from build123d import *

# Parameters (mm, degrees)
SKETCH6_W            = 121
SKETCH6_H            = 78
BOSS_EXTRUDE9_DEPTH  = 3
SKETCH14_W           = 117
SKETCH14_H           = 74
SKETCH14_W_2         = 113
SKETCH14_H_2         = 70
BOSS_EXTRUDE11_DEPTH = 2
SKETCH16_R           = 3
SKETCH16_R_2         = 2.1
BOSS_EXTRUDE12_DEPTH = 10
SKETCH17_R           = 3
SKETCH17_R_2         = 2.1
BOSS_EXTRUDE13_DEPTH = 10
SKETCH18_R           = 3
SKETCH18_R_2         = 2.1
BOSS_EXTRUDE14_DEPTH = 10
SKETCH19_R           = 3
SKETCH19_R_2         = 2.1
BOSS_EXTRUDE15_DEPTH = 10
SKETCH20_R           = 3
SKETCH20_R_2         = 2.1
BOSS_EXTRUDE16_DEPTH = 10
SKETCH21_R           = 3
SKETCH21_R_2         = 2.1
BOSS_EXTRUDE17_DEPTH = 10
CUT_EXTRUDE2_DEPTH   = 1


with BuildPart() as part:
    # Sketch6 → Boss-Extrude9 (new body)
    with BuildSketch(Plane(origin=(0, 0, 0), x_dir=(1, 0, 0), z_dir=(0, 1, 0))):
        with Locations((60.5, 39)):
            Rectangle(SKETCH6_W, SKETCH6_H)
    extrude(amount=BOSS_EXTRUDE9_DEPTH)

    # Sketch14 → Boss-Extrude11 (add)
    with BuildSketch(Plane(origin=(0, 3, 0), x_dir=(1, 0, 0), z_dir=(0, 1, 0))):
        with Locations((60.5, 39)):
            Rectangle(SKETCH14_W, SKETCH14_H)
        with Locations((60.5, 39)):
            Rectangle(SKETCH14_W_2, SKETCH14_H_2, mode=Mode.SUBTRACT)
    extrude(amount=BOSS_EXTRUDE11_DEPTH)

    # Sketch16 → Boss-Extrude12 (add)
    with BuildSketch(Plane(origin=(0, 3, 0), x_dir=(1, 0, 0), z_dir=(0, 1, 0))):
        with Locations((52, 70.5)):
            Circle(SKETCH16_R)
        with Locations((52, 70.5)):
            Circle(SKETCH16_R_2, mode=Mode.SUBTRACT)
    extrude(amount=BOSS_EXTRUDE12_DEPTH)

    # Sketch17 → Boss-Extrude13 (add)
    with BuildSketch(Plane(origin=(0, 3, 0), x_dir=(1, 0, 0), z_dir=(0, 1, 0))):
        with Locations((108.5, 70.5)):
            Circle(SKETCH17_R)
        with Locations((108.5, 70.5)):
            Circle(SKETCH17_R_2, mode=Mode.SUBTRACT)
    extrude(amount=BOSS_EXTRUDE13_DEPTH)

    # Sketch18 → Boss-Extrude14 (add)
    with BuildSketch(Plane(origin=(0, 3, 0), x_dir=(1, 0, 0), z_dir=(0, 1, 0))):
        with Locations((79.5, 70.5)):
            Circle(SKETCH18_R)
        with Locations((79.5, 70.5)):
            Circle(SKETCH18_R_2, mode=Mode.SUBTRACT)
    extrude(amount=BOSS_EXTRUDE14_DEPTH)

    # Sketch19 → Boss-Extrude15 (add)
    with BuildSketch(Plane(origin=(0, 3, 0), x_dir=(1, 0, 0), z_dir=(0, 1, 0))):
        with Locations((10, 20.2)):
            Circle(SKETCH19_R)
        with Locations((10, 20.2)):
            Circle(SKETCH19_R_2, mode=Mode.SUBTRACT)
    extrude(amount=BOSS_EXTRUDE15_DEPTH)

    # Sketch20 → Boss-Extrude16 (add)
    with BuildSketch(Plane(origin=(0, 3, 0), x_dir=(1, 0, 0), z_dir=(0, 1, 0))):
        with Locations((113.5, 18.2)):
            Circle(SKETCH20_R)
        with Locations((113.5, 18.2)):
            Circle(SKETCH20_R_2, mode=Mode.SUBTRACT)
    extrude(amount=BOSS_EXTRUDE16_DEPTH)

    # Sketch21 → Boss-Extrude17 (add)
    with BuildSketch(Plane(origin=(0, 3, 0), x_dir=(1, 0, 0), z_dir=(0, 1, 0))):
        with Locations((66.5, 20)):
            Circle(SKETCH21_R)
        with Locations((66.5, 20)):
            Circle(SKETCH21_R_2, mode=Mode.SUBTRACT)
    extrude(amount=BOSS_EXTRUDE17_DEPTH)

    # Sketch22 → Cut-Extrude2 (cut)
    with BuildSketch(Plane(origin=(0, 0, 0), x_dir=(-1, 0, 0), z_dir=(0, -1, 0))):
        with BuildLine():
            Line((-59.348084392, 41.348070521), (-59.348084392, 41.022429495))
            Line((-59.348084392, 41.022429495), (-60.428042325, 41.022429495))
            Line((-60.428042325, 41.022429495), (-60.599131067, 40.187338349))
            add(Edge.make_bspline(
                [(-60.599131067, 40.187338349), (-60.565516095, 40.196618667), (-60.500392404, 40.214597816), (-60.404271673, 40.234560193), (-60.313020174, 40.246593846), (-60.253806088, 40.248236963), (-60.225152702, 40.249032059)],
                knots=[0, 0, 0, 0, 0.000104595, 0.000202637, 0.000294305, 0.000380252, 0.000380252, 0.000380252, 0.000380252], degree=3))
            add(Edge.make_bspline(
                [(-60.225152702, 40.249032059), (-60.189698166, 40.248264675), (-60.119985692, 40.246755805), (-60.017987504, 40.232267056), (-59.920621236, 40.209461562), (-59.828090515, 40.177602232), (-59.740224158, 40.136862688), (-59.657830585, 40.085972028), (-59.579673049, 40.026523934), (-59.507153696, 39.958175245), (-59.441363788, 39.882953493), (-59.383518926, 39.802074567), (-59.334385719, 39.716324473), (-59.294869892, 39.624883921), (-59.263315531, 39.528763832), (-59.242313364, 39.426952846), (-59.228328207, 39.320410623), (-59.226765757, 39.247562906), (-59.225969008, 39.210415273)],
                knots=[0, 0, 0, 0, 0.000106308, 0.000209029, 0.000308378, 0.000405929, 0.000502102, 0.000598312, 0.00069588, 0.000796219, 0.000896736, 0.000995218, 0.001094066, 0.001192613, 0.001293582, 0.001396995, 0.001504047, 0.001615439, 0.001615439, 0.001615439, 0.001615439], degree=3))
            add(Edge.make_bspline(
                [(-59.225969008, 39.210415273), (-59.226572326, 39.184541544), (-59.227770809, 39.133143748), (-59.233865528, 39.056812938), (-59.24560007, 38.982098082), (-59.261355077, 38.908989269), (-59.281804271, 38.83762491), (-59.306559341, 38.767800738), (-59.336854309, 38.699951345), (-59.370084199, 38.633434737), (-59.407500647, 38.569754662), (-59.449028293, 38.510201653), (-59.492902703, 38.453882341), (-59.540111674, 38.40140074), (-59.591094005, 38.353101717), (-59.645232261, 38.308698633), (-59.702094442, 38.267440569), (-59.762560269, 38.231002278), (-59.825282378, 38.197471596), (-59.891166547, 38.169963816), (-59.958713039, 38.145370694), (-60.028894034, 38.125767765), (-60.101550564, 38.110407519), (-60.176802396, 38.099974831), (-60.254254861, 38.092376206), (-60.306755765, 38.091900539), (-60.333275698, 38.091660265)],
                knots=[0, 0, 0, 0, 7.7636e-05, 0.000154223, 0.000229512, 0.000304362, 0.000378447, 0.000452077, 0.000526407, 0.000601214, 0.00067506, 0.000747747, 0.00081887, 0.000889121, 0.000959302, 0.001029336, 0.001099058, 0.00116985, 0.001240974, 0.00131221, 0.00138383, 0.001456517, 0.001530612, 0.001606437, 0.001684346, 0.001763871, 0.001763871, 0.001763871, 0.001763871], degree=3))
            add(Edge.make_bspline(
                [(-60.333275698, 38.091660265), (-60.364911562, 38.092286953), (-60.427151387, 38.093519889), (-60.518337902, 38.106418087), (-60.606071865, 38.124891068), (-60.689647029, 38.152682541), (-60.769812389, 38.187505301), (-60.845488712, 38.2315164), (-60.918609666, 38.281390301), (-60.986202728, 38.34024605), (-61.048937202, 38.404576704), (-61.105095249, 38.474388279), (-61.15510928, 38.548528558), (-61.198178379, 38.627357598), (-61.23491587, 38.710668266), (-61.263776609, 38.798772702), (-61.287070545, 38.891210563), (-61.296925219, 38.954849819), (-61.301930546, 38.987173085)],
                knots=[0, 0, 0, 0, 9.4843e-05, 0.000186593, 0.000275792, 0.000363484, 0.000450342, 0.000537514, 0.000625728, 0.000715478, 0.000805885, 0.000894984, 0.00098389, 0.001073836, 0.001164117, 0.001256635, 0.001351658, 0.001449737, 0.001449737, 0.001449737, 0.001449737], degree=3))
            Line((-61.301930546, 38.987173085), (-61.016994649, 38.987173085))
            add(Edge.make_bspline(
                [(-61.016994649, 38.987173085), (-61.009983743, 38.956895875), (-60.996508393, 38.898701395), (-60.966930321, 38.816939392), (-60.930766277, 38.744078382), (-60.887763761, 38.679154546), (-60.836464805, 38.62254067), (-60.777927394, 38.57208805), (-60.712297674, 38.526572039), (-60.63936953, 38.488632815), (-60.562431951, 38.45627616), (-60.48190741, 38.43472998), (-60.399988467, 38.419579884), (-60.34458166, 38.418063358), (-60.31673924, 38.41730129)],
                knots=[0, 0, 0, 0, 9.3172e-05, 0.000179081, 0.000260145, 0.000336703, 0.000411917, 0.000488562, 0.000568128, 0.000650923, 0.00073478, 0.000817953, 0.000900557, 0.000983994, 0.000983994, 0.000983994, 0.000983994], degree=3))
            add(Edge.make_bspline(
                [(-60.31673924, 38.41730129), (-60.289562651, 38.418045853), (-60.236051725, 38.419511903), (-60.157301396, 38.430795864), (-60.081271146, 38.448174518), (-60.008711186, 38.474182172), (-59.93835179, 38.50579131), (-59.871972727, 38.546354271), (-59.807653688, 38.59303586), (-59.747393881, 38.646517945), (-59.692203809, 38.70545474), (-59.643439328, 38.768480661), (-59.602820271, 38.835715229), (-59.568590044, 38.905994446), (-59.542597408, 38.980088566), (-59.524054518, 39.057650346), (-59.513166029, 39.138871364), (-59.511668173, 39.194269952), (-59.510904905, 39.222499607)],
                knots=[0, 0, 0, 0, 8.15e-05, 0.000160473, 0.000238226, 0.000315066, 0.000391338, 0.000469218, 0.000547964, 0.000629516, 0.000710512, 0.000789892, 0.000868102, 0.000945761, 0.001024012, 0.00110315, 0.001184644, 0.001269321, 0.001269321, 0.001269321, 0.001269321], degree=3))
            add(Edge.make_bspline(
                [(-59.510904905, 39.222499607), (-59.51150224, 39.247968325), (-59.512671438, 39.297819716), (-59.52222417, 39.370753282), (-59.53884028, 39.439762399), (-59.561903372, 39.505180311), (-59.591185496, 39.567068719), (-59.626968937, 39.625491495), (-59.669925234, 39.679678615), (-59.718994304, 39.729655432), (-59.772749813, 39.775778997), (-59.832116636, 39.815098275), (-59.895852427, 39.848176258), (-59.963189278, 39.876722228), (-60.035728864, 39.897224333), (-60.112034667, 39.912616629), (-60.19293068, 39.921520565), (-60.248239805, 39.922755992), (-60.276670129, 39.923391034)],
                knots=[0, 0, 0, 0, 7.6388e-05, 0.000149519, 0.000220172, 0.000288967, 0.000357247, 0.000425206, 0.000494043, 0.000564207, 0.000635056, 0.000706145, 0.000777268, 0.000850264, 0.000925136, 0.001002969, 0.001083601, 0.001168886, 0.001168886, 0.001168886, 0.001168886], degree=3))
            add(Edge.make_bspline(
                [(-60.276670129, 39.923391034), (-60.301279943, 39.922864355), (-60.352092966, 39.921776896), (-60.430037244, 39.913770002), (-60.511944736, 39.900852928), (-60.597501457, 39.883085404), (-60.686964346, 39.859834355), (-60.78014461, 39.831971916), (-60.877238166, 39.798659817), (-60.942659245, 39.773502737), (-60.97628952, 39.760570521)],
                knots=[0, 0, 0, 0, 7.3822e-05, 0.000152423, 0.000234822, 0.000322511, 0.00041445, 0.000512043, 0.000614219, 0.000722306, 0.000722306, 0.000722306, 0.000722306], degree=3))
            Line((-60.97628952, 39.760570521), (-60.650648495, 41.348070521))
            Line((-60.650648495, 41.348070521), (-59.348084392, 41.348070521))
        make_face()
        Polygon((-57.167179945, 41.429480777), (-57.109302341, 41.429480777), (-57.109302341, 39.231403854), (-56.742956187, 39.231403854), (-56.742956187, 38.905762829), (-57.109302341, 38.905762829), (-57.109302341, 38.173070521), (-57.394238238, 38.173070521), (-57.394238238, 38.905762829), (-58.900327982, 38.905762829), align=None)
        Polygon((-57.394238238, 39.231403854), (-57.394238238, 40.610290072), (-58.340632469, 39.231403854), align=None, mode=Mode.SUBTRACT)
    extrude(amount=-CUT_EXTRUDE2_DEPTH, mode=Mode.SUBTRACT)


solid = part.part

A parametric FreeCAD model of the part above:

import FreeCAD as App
import Part
import Sketcher
from FreeCAD import Vector
Q = App.Units.Quantity


def add_polygon(sketch, points):
    """Adds a closed chain of lines whose ends are joined by coincident constraints."""
    first, n = sketch.GeometryCount, len(points)
    for a, b in zip(points, points[1:] + points[:1]):
        sketch.addGeometry(Part.LineSegment(App.Vector(*a, 0), App.Vector(*b, 0)), False)
    for i in range(n):
        sketch.addConstraint(Sketcher.Constraint("Coincident", first + i, 2, first + (i + 1) % n, 1))

doc = App.newDocument("Part")
params = doc.addObject("Spreadsheet::Sheet", "Params")
for row, (alias, value) in enumerate([
    ("sketch1_width", "121 mm"),
    ("sketch1_height", "78 mm"),
    ("pad1_length", "3 mm"),
    ("sketch2_width", "117 mm"),
    ("sketch2_width2", "113 mm"),
    ("sketch2_height", "74 mm"),
    ("sketch2_height2", "70 mm"),
    ("pad2_length", "2 mm"),
    ("sketch3_diameter", "6 mm"),
    ("sketch3_diameter2", "4.2 mm"),
    ("pad3_length", "10 mm"),
    ("sketch4_diameter", "6 mm"),
    ("sketch4_diameter2", "4.2 mm"),
    ("pad4_length", "10 mm"),
    ("sketch5_diameter", "6 mm"),
    ("sketch5_diameter2", "4.2 mm"),
    ("pad5_length", "10 mm"),
    ("sketch6_diameter", "6 mm"),
    ("sketch6_diameter2", "4.2 mm"),
    ("pad6_length", "10 mm"),
    ("sketch7_diameter", "6 mm"),
    ("sketch7_diameter2", "4.2 mm"),
    ("pad7_length", "10 mm"),
    ("sketch8_diameter", "6 mm"),
    ("sketch8_diameter2", "4.2 mm"),
    ("pad8_length", "10 mm"),
    ("pocket1_length", "1 mm"),
], start=1):
    params.set(f"A{row}", alias)
    params.set(f"B{row}", "=" + value)
    params.setAlias(f"B{row}", alias)

body = doc.addObject("PartDesign::Body", "Body")

# Sketch on XZ plane
sketch1 = body.newObject("Sketcher::SketchObject", "Sketch")
sketch1.AttachmentSupport = (doc.getObject("XZ_Plane"), [""])
sketch1.MapMode = "FlatFace"
add_polygon(sketch1, [(0, -78), (0, 0), (121, 0), (121, -78)])  # lines 0-3
sketch1.addConstraint([
    Sketcher.Constraint("Vertical", 0),
    Sketcher.Constraint("Horizontal", 1),
    Sketcher.Constraint("Vertical", 2),
    Sketcher.Constraint("Horizontal", 3),
    Sketcher.Constraint("Coincident", 0, 2, -1, 1),
    Sketcher.Constraint("DistanceX", 1, 1, 1, 2, Q("121 mm")),
    Sketcher.Constraint("DistanceY", 0, 1, 0, 2, Q("78 mm")),
])
sketch1.setExpression("Constraints[9]", "Params.sketch1_width")
sketch1.setExpression("Constraints[10]", "Params.sketch1_height")
pad1 = body.newObject("PartDesign::Pad", "Pad")
pad1.Profile = sketch1
pad1.setExpression("Length", "Params.pad1_length")
pad1.Reversed = True

# Sketch on XZ plane
sketch2 = body.newObject("Sketcher::SketchObject", "Sketch001")
sketch2.AttachmentSupport = (doc.getObject("XZ_Plane"), [""])
sketch2.MapMode = "FlatFace"
sketch2.AttachmentOffset = App.Placement(Vector(0, 0, -3), App.Rotation())
add_polygon(sketch2, [(2, -76), (2, -2), (119, -2), (119, -76)])  # lines 0-3
add_polygon(sketch2, [(117, -4), (4, -4), (4, -74), (117, -74)])  # lines 4-7
sketch2.addConstraint([
    Sketcher.Constraint("Vertical", 0),
    Sketcher.Constraint("Horizontal", 1),
    Sketcher.Constraint("Vertical", 2),
    Sketcher.Constraint("Horizontal", 3),
    Sketcher.Constraint("Horizontal", 4),
    Sketcher.Constraint("Vertical", 5),
    Sketcher.Constraint("Horizontal", 6),
    Sketcher.Constraint("Vertical", 7),
    Sketcher.Constraint("DistanceX", 1, 1, 1, 2, Q("117 mm")),
    Sketcher.Constraint("DistanceX", 4, 2, 4, 1, Q("113 mm")),
    Sketcher.Constraint("DistanceY", 0, 1, 0, 2, Q("74 mm")),
    Sketcher.Constraint("DistanceY", 5, 2, 5, 1, Q("70 mm")),
    Sketcher.Constraint("DistanceX", -1, 1, 0, 2, Q("2 mm")),
    Sketcher.Constraint("DistanceY", 0, 2, -1, 1, Q("2 mm")),
    Sketcher.Constraint("DistanceX", -1, 1, 4, 2, Q("4 mm")),
    Sketcher.Constraint("DistanceY", 4, 2, -1, 1, Q("4 mm")),
])
sketch2.setExpression("Constraints[16]", "Params.sketch2_width")
sketch2.setExpression("Constraints[17]", "Params.sketch2_width2")
sketch2.setExpression("Constraints[18]", "Params.sketch2_height")
sketch2.setExpression("Constraints[19]", "Params.sketch2_height2")
pad2 = body.newObject("PartDesign::Pad", "Pad001")
pad2.Profile = sketch2
pad2.setExpression("Length", "Params.pad2_length")
pad2.Reversed = True

# Sketch on XZ plane
sketch3 = body.newObject("Sketcher::SketchObject", "Sketch002")
sketch3.AttachmentSupport = (doc.getObject("XZ_Plane"), [""])
sketch3.MapMode = "FlatFace"
sketch3.AttachmentOffset = App.Placement(Vector(0, 0, -3), App.Rotation())
sketch3.addGeometry([
    Part.Circle(Vector(52, -70.5, 0), Vector(0, 0, 1), 3),
    Part.Circle(Vector(52, -70.5, 0), Vector(0, 0, 1), 2.1),
], False)
sketch3.addConstraint([
    Sketcher.Constraint("Coincident", 1, 3, 0, 3),
    Sketcher.Constraint("Diameter", 0, Q("6 mm")),
    Sketcher.Constraint("Diameter", 1, Q("4.2 mm")),
    Sketcher.Constraint("DistanceX", -1, 1, 0, 3, Q("52 mm")),
    Sketcher.Constraint("DistanceY", 0, 3, -1, 1, Q("70.5 mm")),
])
sketch3.setExpression("Constraints[1]", "Params.sketch3_diameter")
sketch3.setExpression("Constraints[2]", "Params.sketch3_diameter2")
pad3 = body.newObject("PartDesign::Pad", "Pad002")
pad3.Profile = sketch3
pad3.setExpression("Length", "Params.pad3_length")
pad3.Reversed = True

# Sketch on XZ plane
sketch4 = body.newObject("Sketcher::SketchObject", "Sketch003")
sketch4.AttachmentSupport = (doc.getObject("XZ_Plane"), [""])
sketch4.MapMode = "FlatFace"
sketch4.AttachmentOffset = App.Placement(Vector(0, 0, -3), App.Rotation())
sketch4.addGeometry([
    Part.Circle(Vector(108.5, -70.5, 0), Vector(0, 0, 1), 3),
    Part.Circle(Vector(108.5, -70.5, 0), Vector(0, 0, 1), 2.1),
], False)
sketch4.addConstraint([
    Sketcher.Constraint("Coincident", 1, 3, 0, 3),
    Sketcher.Constraint("Diameter", 0, Q("6 mm")),
    Sketcher.Constraint("Diameter", 1, Q("4.2 mm")),
    Sketcher.Constraint("DistanceX", -1, 1, 0, 3, Q("108.5 mm")),
    Sketcher.Constraint("DistanceY", 0, 3, -1, 1, Q("70.5 mm")),
])
sketch4.setExpression("Constraints[1]", "Params.sketch4_diameter")
sketch4.setExpression("Constraints[2]", "Params.sketch4_diameter2")
pad4 = body.newObject("PartDesign::Pad", "Pad003")
pad4.Profile = sketch4
pad4.setExpression("Length", "Params.pad4_length")
pad4.Reversed = True

# Sketch on XZ plane
sketch5 = body.newObject("Sketcher::SketchObject", "Sketch004")
sketch5.AttachmentSupport = (doc.getObject("XZ_Plane"), [""])
sketch5.MapMode = "FlatFace"
sketch5.AttachmentOffset = App.Placement(Vector(0, 0, -3), App.Rotation())
sketch5.addGeometry([
    Part.Circle(Vector(79.5, -70.5, 0), Vector(0, 0, 1), 3),
    Part.Circle(Vector(79.5, -70.5, 0), Vector(0, 0, 1), 2.1),
], False)
sketch5.addConstraint([
    Sketcher.Constraint("Coincident", 1, 3, 0, 3),
    Sketcher.Constraint("Diameter", 0, Q("6 mm")),
    Sketcher.Constraint("Diameter", 1, Q("4.2 mm")),
    Sketcher.Constraint("DistanceX", -1, 1, 0, 3, Q("79.5 mm")),
    Sketcher.Constraint("DistanceY", 0, 3, -1, 1, Q("70.5 mm")),
])
sketch5.setExpression("Constraints[1]", "Params.sketch5_diameter")
sketch5.setExpression("Constraints[2]", "Params.sketch5_diameter2")
pad5 = body.newObject("PartDesign::Pad", "Pad004")
pad5.Profile = sketch5
pad5.setExpression("Length", "Params.pad5_length")
pad5.Reversed = True

# Sketch on XZ plane
sketch6 = body.newObject("Sketcher::SketchObject", "Sketch005")
sketch6.AttachmentSupport = (doc.getObject("XZ_Plane"), [""])
sketch6.MapMode = "FlatFace"
sketch6.AttachmentOffset = App.Placement(Vector(0, 0, -3), App.Rotation())
sketch6.addGeometry([
    Part.Circle(Vector(10, -20.2, 0), Vector(0, 0, 1), 3),
    Part.Circle(Vector(10, -20.2, 0), Vector(0, 0, 1), 2.1),
], False)
sketch6.addConstraint([
    Sketcher.Constraint("Coincident", 1, 3, 0, 3),
    Sketcher.Constraint("Diameter", 0, Q("6 mm")),
    Sketcher.Constraint("Diameter", 1, Q("4.2 mm")),
    Sketcher.Constraint("DistanceX", -1, 1, 0, 3, Q("10 mm")),
    Sketcher.Constraint("DistanceY", 0, 3, -1, 1, Q("20.2 mm")),
])
sketch6.setExpression("Constraints[1]", "Params.sketch6_diameter")
sketch6.setExpression("Constraints[2]", "Params.sketch6_diameter2")
pad6 = body.newObject("PartDesign::Pad", "Pad005")
pad6.Profile = sketch6
pad6.setExpression("Length", "Params.pad6_length")
pad6.Reversed = True

# Sketch on XZ plane
sketch7 = body.newObject("Sketcher::SketchObject", "Sketch006")
sketch7.AttachmentSupport = (doc.getObject("XZ_Plane"), [""])
sketch7.MapMode = "FlatFace"
sketch7.AttachmentOffset = App.Placement(Vector(0, 0, -3), App.Rotation())
sketch7.addGeometry([
    Part.Circle(Vector(113.5, -18.2, 0), Vector(0, 0, 1), 3),
    Part.Circle(Vector(113.5, -18.2, 0), Vector(0, 0, 1), 2.1),
], False)
sketch7.addConstraint([
    Sketcher.Constraint("Coincident", 1, 3, 0, 3),
    Sketcher.Constraint("Diameter", 0, Q("6 mm")),
    Sketcher.Constraint("Diameter", 1, Q("4.2 mm")),
    Sketcher.Constraint("DistanceX", -1, 1, 0, 3, Q("113.5 mm")),
    Sketcher.Constraint("DistanceY", 0, 3, -1, 1, Q("18.2 mm")),
])
sketch7.setExpression("Constraints[1]", "Params.sketch7_diameter")
sketch7.setExpression("Constraints[2]", "Params.sketch7_diameter2")
pad7 = body.newObject("PartDesign::Pad", "Pad006")
pad7.Profile = sketch7
pad7.setExpression("Length", "Params.pad7_length")
pad7.Reversed = True

# Sketch on XZ plane
sketch8 = body.newObject("Sketcher::SketchObject", "Sketch007")
sketch8.AttachmentSupport = (doc.getObject("XZ_Plane"), [""])
sketch8.MapMode = "FlatFace"
sketch8.AttachmentOffset = App.Placement(Vector(0, 0, -3), App.Rotation())
sketch8.addGeometry([
    Part.Circle(Vector(66.5, -20, 0), Vector(0, 0, 1), 3),
    Part.Circle(Vector(66.5, -20, 0), Vector(0, 0, 1), 2.1),
], False)
sketch8.addConstraint([
    Sketcher.Constraint("Coincident", 1, 3, 0, 3),
    Sketcher.Constraint("Diameter", 0, Q("6 mm")),
    Sketcher.Constraint("Diameter", 1, Q("4.2 mm")),
    Sketcher.Constraint("DistanceY", 0, 3, -1, 1, Q("20 mm")),
    Sketcher.Constraint("DistanceX", -1, 1, 0, 3, Q("66.5 mm")),
])
sketch8.setExpression("Constraints[1]", "Params.sketch8_diameter")
sketch8.setExpression("Constraints[2]", "Params.sketch8_diameter2")
pad8 = body.newObject("PartDesign::Pad", "Pad007")
pad8.Profile = sketch8
pad8.setExpression("Length", "Params.pad8_length")
pad8.Reversed = True

# Sketch on XZ plane
sketch9 = body.newObject("Sketcher::SketchObject", "Sketch008")
sketch9.AttachmentSupport = (doc.getObject("XZ_Plane"), [""])
sketch9.MapMode = "FlatFace"
sketch9.addGeometry(Part.LineSegment(Vector(59.348084, -41.022429, 0), Vector(59.348084, -41.348071, 0)), False)  # 0
sketch9.addGeometry(Part.LineSegment(Vector(59.348084, -41.348071, 0), Vector(60.650648, -41.348071, 0)), False)  # 1
sketch9.addGeometry(Part.LineSegment(Vector(60.650648, -41.348071, 0), Vector(60.97629, -39.760571, 0)), False)  # 2
sketch9.addGeometry(Part.BSplineCurve([Vector(60.27667, -39.923391, 0), Vector(60.30128, -39.922864, 0), Vector(60.352093, -39.921777, 0), Vector(60.430037, -39.91377, 0), Vector(60.511945, -39.900853, 0), Vector(60.597501, -39.883085, 0), Vector(60.686964, -39.859834, 0), Vector(60.780145, -39.831972, 0), Vector(60.877238, -39.79866, 0), Vector(60.942659, -39.773503, 0), Vector(60.97629, -39.760571, 0)], [4, 1, 1, 1, 1, 1, 1, 1, 4], [0, 0.000073822, 0.000152423, 0.000234822, 0.000322511, 0.00041445, 0.000512043, 0.000614219, 0.000722306], False, 3, [1, 1, 1, 1, 1, 1, 1, 1, 1, 1, 1], False), False)  # 3
sketch9.addGeometry(Part.BSplineCurve([Vector(59.510905, -39.2225, 0), Vector(59.511502, -39.247968, 0), Vector(59.512671, -39.29782, 0), Vector(59.522224, -39.370753, 0), Vector(59.53884, -39.439762, 0), Vector(59.561903, -39.50518, 0), Vector(59.591185, -39.567069, 0), Vector(59.626969, -39.625491, 0), Vector(59.669925, -39.679679, 0), Vector(59.718994, -39.729655, 0), Vector(59.77275, -39.775779, 0), Vector(59.832117, -39.815098, 0), Vector(59.895852, -39.848176, 0), Vector(59.963189, -39.876722, 0), Vector(60.035729, -39.897224, 0), Vector(60.112035, -39.912617, 0), Vector(60.192931, -39.921521, 0), Vector(60.24824, -39.922756, 0), Vector(60.27667, -39.923391, 0)], [4, 1, 1, 1, 1, 1, 1, 1, 1, 1, 1, 1, 1, 1, 1, 1, 4], [0, 0.000076388, 0.000149519, 0.000220172, 0.000288967, 0.000357247, 0.000425206, 0.000494043, 0.000564207, 0.000635056, 0.000706145, 0.000777268, 0.000850264, 0.000925136, 0.001002969, 0.001083601, 0.001168886], False, 3, [1, 1, 1, 1, 1, 1, 1, 1, 1, 1, 1, 1, 1, 1, 1, 1, 1, 1, 1], False), False)  # 4
sketch9.addGeometry(Part.BSplineCurve([Vector(60.316739, -38.417301, 0), Vector(60.289563, -38.418046, 0), Vector(60.236052, -38.419512, 0), Vector(60.157301, -38.430796, 0), Vector(60.081271, -38.448175, 0), Vector(60.008711, -38.474182, 0), Vector(59.938352, -38.505791, 0), Vector(59.871973, -38.546354, 0), Vector(59.807654, -38.593036, 0), Vector(59.747394, -38.646518, 0), Vector(59.692204, -38.705455, 0), Vector(59.643439, -38.768481, 0), Vector(59.60282, -38.835715, 0), Vector(59.56859, -38.905994, 0), Vector(59.542597, -38.980089, 0), Vector(59.524055, -39.05765, 0), Vector(59.513166, -39.138871, 0), Vector(59.511668, -39.19427, 0), Vector(59.510905, -39.2225, 0)], [4, 1, 1, 1, 1, 1, 1, 1, 1, 1, 1, 1, 1, 1, 1, 1, 4], [0, 0.0000815, 0.000160473, 0.000238226, 0.000315066, 0.000391338, 0.000469218, 0.000547964, 0.000629516, 0.000710512, 0.000789892, 0.000868102, 0.000945761, 0.001024012, 0.00110315, 0.001184644, 0.001269321], False, 3, [1, 1, 1, 1, 1, 1, 1, 1, 1, 1, 1, 1, 1, 1, 1, 1, 1, 1, 1], False), False)  # 5
sketch9.addGeometry(Part.BSplineCurve([Vector(61.016995, -38.987173, 0), Vector(61.009984, -38.956896, 0), Vector(60.996508, -38.898701, 0), Vector(60.96693, -38.816939, 0), Vector(60.930766, -38.744078, 0), Vector(60.887764, -38.679155, 0), Vector(60.836465, -38.622541, 0), Vector(60.777927, -38.572088, 0), Vector(60.712298, -38.526572, 0), Vector(60.63937, -38.488633, 0), Vector(60.562432, -38.456276, 0), Vector(60.481907, -38.43473, 0), Vector(60.399988, -38.41958, 0), Vector(60.344582, -38.418063, 0), Vector(60.316739, -38.417301, 0)], [4, 1, 1, 1, 1, 1, 1, 1, 1, 1, 1, 1, 4], [0, 0.000093172, 0.000179081, 0.000260145, 0.000336703, 0.000411917, 0.000488562, 0.000568128, 0.000650923, 0.00073478, 0.000817953, 0.000900557, 0.000983994], False, 3, [1, 1, 1, 1, 1, 1, 1, 1, 1, 1, 1, 1, 1, 1, 1], False), False)  # 6
sketch9.addGeometry(Part.LineSegment(Vector(61.016995, -38.987173, 0), Vector(61.301931, -38.987173, 0)), False)  # 7
sketch9.addGeometry(Part.BSplineCurve([Vector(60.333276, -38.09166, 0), Vector(60.364912, -38.092287, 0), Vector(60.427151, -38.09352, 0), Vector(60.518338, -38.106418, 0), Vector(60.606072, -38.124891, 0), Vector(60.689647, -38.152683, 0), Vector(60.769812, -38.187505, 0), Vector(60.845489, -38.231516, 0), Vector(60.91861, -38.28139, 0), Vector(60.986203, -38.340246, 0), Vector(61.048937, -38.404577, 0), Vector(61.105095, -38.474388, 0), Vector(61.155109, -38.548529, 0), Vector(61.198178, -38.627358, 0), Vector(61.234916, -38.710668, 0), Vector(61.263777, -38.798773, 0), Vector(61.287071, -38.891211, 0), Vector(61.296925, -38.95485, 0), Vector(61.301931, -38.987173, 0)], [4, 1, 1, 1, 1, 1, 1, 1, 1, 1, 1, 1, 1, 1, 1, 1, 4], [0, 0.000094843, 0.000186593, 0.000275792, 0.000363484, 0.000450342, 0.000537514, 0.000625728, 0.000715478, 0.000805885, 0.000894984, 0.00098389, 0.001073836, 0.001164117, 0.001256635, 0.001351658, 0.001449737], False, 3, [1, 1, 1, 1, 1, 1, 1, 1, 1, 1, 1, 1, 1, 1, 1, 1, 1, 1, 1], False), False)  # 8
sketch9.addGeometry(Part.BSplineCurve([Vector(59.225969, -39.210415, 0), Vector(59.226572, -39.184542, 0), Vector(59.227771, -39.133144, 0), Vector(59.233866, -39.056813, 0), Vector(59.2456, -38.982098, 0), Vector(59.261355, -38.908989, 0), Vector(59.281804, -38.837625, 0), Vector(59.306559, -38.767801, 0), Vector(59.336854, -38.699951, 0), Vector(59.370084, -38.633435, 0), Vector(59.407501, -38.569755, 0), Vector(59.449028, -38.510202, 0), Vector(59.492903, -38.453882, 0), Vector(59.540112, -38.401401, 0), Vector(59.591094, -38.353102, 0), Vector(59.645232, -38.308699, 0), Vector(59.702094, -38.267441, 0), Vector(59.76256, -38.231002, 0), Vector(59.825282, -38.197472, 0), Vector(59.891167, -38.169964, 0), Vector(59.958713, -38.145371, 0), Vector(60.028894, -38.125768, 0), Vector(60.101551, -38.110408, 0), Vector(60.176802, -38.099975, 0), Vector(60.254255, -38.092376, 0), Vector(60.306756, -38.091901, 0), Vector(60.333276, -38.09166, 0)], [4, 1, 1, 1, 1, 1, 1, 1, 1, 1, 1, 1, 1, 1, 1, 1, 1, 1, 1, 1, 1, 1, 1, 1, 4], [0, 0.000077636, 0.000154223, 0.000229512, 0.000304362, 0.000378447, 0.000452077, 0.000526407, 0.000601214, 0.00067506, 0.000747747, 0.00081887, 0.000889121, 0.000959302, 0.001029336, 0.001099058, 0.00116985, 0.001240974, 0.00131221, 0.00138383, 0.001456517, 0.001530612, 0.001606437, 0.001684346, 0.001763871], False, 3, [1, 1, 1, 1, 1, 1, 1, 1, 1, 1, 1, 1, 1, 1, 1, 1, 1, 1, 1, 1, 1, 1, 1, 1, 1, 1, 1], False), False)  # 9
sketch9.addGeometry(Part.BSplineCurve([Vector(60.225153, -40.249032, 0), Vector(60.189698, -40.248265, 0), Vector(60.119986, -40.246756, 0), Vector(60.017988, -40.232267, 0), Vector(59.920621, -40.209462, 0), Vector(59.828091, -40.177602, 0), Vector(59.740224, -40.136863, 0), Vector(59.657831, -40.085972, 0), Vector(59.579673, -40.026524, 0), Vector(59.507154, -39.958175, 0), Vector(59.441364, -39.882953, 0), Vector(59.383519, -39.802075, 0), Vector(59.334386, -39.716324, 0), Vector(59.29487, -39.624884, 0), Vector(59.263316, -39.528764, 0), Vector(59.242313, -39.426953, 0), Vector(59.228328, -39.320411, 0), Vector(59.226766, -39.247563, 0), Vector(59.225969, -39.210415, 0)], [4, 1, 1, 1, 1, 1, 1, 1, 1, 1, 1, 1, 1, 1, 1, 1, 4], [0, 0.000106308, 0.000209029, 0.000308378, 0.000405929, 0.000502102, 0.000598312, 0.00069588, 0.000796219, 0.000896736, 0.000995218, 0.001094066, 0.001192613, 0.001293582, 0.001396995, 0.001504047, 0.001615439], False, 3, [1, 1, 1, 1, 1, 1, 1, 1, 1, 1, 1, 1, 1, 1, 1, 1, 1, 1, 1], False), False)  # 10
sketch9.addGeometry(Part.BSplineCurve([Vector(60.599131, -40.187338, 0), Vector(60.565516, -40.196619, 0), Vector(60.500392, -40.214598, 0), Vector(60.404272, -40.23456, 0), Vector(60.31302, -40.246594, 0), Vector(60.253806, -40.248237, 0), Vector(60.225153, -40.249032, 0)], [4, 1, 1, 1, 4], [0, 0.000104595, 0.000202637, 0.000294305, 0.000380252], False, 3, [1, 1, 1, 1, 1, 1, 1], False), False)  # 11
sketch9.addGeometry(Part.LineSegment(Vector(60.599131, -40.187338, 0), Vector(60.428042, -41.022429, 0)), False)  # 12
sketch9.addGeometry(Part.LineSegment(Vector(60.428042, -41.022429, 0), Vector(59.348084, -41.022429, 0)), False)  # 13
add_polygon(sketch9, [(57.109302, -41.429481), (57.16718, -41.429481), (58.900328, -38.905763), (57.394238, -38.905763), (57.394238, -38.173071), (57.109302, -38.173071), (57.109302, -38.905763), (56.742956, -38.905763), (56.742956, -39.231404), (57.109302, -39.231404)])  # lines 14-23
add_polygon(sketch9, [(57.394238, -39.231404), (58.340632, -39.231404), (57.394238, -40.61029)])  # lines 24-26
sketch9.addConstraint([
    Sketcher.Constraint("Block", 3),
    Sketcher.Constraint("Block", 4),
    Sketcher.Constraint("Block", 5),
    Sketcher.Constraint("Block", 6),
    Sketcher.Constraint("Block", 8),
    Sketcher.Constraint("Block", 9),
    Sketcher.Constraint("Block", 10),
    Sketcher.Constraint("Block", 11),
    Sketcher.Constraint("Coincident", 0, 2, 1, 1),
    Sketcher.Constraint("Coincident", 1, 2, 2, 1),
    Sketcher.Constraint("Coincident", 2, 2, 3, 2),
    Sketcher.Constraint("Coincident", 6, 1, 7, 1),
    Sketcher.Constraint("Coincident", 7, 2, 8, 2),
    Sketcher.Constraint("Coincident", 11, 1, 12, 1),
    Sketcher.Constraint("Coincident", 12, 2, 13, 1),
    Sketcher.Constraint("Coincident", 13, 2, 0, 1),
    Sketcher.Constraint("Vertical", 0),
    Sketcher.Constraint("Horizontal", 1),
    Sketcher.Constraint("Horizontal", 13),
    Sketcher.Constraint("Horizontal", 14),
    Sketcher.Constraint("Horizontal", 16),
    Sketcher.Constraint("Vertical", 17),
    Sketcher.Constraint("Horizontal", 18),
    Sketcher.Constraint("Vertical", 19),
    Sketcher.Constraint("Horizontal", 20),
    Sketcher.Constraint("Vertical", 21),
    Sketcher.Constraint("Horizontal", 22),
    Sketcher.Constraint("Vertical", 23),
    Sketcher.Constraint("Horizontal", 24),
    Sketcher.Constraint("Vertical", 26),
    Sketcher.Constraint("DistanceY", 0, 2, 17, 2, Q("3.175 mm")),
    Sketcher.Constraint("DistanceX", 16, 2, 16, 1, Q("1.50609 mm")),
    Sketcher.Constraint("DistanceY", 0, 2, 0, 1, Q("0.325641 mm")),
    Sketcher.Constraint("DistanceY", 21, 2, 21, 1, Q("0.325641 mm")),
    Sketcher.Constraint("DistanceY", 1, 2, 2, 2, Q("1.5875 mm")),
    Sketcher.Constraint("Distance", 15, Q("3.061528 mm")),
    Sketcher.Constraint("Distance", 25, Q("1.67242 mm")),
    Sketcher.Constraint("DistanceX", 1, 1, 1, 2, Q("1.302564 mm")),
    Sketcher.Constraint("DistanceX", 13, 2, 13, 1, Q("1.079958 mm")),
    Sketcher.Constraint("DistanceX", 14, 1, 14, 2, Q("0.057878 mm")),
    Sketcher.Constraint("DistanceX", 18, 2, 18, 1, Q("0.284936 mm")),
    Sketcher.Constraint("DistanceX", 20, 2, 20, 1, Q("0.366346 mm")),
    Sketcher.Constraint("DistanceX", 22, 1, 22, 2, Q("0.366346 mm")),
    Sketcher.Constraint("DistanceX", 24, 1, 24, 2, Q("0.946394 mm")),
    Sketcher.Constraint("DistanceY", 17, 1, 17, 2, Q("0.732692 mm")),
    Sketcher.Constraint("DistanceY", 19, 2, 19, 1, Q("0.732692 mm")),
    Sketcher.Constraint("DistanceX", -1, 1, 1, 2, Q("60.650648 mm")),
    Sketcher.Constraint("DistanceX", -1, 1, 14, 2, Q("57.16718 mm")),
    Sketcher.Constraint("DistanceX", -1, 1, 25, 2, Q("57.394238 mm")),
    Sketcher.Constraint("DistanceY", 25, 2, -1, 1, Q("40.61029 mm")),
])
pocket1 = body.newObject("PartDesign::Pocket", "Pocket")
pocket1.Profile = sketch9
pocket1.setExpression("Length", "Params.pocket1_length")

doc.recompute()
